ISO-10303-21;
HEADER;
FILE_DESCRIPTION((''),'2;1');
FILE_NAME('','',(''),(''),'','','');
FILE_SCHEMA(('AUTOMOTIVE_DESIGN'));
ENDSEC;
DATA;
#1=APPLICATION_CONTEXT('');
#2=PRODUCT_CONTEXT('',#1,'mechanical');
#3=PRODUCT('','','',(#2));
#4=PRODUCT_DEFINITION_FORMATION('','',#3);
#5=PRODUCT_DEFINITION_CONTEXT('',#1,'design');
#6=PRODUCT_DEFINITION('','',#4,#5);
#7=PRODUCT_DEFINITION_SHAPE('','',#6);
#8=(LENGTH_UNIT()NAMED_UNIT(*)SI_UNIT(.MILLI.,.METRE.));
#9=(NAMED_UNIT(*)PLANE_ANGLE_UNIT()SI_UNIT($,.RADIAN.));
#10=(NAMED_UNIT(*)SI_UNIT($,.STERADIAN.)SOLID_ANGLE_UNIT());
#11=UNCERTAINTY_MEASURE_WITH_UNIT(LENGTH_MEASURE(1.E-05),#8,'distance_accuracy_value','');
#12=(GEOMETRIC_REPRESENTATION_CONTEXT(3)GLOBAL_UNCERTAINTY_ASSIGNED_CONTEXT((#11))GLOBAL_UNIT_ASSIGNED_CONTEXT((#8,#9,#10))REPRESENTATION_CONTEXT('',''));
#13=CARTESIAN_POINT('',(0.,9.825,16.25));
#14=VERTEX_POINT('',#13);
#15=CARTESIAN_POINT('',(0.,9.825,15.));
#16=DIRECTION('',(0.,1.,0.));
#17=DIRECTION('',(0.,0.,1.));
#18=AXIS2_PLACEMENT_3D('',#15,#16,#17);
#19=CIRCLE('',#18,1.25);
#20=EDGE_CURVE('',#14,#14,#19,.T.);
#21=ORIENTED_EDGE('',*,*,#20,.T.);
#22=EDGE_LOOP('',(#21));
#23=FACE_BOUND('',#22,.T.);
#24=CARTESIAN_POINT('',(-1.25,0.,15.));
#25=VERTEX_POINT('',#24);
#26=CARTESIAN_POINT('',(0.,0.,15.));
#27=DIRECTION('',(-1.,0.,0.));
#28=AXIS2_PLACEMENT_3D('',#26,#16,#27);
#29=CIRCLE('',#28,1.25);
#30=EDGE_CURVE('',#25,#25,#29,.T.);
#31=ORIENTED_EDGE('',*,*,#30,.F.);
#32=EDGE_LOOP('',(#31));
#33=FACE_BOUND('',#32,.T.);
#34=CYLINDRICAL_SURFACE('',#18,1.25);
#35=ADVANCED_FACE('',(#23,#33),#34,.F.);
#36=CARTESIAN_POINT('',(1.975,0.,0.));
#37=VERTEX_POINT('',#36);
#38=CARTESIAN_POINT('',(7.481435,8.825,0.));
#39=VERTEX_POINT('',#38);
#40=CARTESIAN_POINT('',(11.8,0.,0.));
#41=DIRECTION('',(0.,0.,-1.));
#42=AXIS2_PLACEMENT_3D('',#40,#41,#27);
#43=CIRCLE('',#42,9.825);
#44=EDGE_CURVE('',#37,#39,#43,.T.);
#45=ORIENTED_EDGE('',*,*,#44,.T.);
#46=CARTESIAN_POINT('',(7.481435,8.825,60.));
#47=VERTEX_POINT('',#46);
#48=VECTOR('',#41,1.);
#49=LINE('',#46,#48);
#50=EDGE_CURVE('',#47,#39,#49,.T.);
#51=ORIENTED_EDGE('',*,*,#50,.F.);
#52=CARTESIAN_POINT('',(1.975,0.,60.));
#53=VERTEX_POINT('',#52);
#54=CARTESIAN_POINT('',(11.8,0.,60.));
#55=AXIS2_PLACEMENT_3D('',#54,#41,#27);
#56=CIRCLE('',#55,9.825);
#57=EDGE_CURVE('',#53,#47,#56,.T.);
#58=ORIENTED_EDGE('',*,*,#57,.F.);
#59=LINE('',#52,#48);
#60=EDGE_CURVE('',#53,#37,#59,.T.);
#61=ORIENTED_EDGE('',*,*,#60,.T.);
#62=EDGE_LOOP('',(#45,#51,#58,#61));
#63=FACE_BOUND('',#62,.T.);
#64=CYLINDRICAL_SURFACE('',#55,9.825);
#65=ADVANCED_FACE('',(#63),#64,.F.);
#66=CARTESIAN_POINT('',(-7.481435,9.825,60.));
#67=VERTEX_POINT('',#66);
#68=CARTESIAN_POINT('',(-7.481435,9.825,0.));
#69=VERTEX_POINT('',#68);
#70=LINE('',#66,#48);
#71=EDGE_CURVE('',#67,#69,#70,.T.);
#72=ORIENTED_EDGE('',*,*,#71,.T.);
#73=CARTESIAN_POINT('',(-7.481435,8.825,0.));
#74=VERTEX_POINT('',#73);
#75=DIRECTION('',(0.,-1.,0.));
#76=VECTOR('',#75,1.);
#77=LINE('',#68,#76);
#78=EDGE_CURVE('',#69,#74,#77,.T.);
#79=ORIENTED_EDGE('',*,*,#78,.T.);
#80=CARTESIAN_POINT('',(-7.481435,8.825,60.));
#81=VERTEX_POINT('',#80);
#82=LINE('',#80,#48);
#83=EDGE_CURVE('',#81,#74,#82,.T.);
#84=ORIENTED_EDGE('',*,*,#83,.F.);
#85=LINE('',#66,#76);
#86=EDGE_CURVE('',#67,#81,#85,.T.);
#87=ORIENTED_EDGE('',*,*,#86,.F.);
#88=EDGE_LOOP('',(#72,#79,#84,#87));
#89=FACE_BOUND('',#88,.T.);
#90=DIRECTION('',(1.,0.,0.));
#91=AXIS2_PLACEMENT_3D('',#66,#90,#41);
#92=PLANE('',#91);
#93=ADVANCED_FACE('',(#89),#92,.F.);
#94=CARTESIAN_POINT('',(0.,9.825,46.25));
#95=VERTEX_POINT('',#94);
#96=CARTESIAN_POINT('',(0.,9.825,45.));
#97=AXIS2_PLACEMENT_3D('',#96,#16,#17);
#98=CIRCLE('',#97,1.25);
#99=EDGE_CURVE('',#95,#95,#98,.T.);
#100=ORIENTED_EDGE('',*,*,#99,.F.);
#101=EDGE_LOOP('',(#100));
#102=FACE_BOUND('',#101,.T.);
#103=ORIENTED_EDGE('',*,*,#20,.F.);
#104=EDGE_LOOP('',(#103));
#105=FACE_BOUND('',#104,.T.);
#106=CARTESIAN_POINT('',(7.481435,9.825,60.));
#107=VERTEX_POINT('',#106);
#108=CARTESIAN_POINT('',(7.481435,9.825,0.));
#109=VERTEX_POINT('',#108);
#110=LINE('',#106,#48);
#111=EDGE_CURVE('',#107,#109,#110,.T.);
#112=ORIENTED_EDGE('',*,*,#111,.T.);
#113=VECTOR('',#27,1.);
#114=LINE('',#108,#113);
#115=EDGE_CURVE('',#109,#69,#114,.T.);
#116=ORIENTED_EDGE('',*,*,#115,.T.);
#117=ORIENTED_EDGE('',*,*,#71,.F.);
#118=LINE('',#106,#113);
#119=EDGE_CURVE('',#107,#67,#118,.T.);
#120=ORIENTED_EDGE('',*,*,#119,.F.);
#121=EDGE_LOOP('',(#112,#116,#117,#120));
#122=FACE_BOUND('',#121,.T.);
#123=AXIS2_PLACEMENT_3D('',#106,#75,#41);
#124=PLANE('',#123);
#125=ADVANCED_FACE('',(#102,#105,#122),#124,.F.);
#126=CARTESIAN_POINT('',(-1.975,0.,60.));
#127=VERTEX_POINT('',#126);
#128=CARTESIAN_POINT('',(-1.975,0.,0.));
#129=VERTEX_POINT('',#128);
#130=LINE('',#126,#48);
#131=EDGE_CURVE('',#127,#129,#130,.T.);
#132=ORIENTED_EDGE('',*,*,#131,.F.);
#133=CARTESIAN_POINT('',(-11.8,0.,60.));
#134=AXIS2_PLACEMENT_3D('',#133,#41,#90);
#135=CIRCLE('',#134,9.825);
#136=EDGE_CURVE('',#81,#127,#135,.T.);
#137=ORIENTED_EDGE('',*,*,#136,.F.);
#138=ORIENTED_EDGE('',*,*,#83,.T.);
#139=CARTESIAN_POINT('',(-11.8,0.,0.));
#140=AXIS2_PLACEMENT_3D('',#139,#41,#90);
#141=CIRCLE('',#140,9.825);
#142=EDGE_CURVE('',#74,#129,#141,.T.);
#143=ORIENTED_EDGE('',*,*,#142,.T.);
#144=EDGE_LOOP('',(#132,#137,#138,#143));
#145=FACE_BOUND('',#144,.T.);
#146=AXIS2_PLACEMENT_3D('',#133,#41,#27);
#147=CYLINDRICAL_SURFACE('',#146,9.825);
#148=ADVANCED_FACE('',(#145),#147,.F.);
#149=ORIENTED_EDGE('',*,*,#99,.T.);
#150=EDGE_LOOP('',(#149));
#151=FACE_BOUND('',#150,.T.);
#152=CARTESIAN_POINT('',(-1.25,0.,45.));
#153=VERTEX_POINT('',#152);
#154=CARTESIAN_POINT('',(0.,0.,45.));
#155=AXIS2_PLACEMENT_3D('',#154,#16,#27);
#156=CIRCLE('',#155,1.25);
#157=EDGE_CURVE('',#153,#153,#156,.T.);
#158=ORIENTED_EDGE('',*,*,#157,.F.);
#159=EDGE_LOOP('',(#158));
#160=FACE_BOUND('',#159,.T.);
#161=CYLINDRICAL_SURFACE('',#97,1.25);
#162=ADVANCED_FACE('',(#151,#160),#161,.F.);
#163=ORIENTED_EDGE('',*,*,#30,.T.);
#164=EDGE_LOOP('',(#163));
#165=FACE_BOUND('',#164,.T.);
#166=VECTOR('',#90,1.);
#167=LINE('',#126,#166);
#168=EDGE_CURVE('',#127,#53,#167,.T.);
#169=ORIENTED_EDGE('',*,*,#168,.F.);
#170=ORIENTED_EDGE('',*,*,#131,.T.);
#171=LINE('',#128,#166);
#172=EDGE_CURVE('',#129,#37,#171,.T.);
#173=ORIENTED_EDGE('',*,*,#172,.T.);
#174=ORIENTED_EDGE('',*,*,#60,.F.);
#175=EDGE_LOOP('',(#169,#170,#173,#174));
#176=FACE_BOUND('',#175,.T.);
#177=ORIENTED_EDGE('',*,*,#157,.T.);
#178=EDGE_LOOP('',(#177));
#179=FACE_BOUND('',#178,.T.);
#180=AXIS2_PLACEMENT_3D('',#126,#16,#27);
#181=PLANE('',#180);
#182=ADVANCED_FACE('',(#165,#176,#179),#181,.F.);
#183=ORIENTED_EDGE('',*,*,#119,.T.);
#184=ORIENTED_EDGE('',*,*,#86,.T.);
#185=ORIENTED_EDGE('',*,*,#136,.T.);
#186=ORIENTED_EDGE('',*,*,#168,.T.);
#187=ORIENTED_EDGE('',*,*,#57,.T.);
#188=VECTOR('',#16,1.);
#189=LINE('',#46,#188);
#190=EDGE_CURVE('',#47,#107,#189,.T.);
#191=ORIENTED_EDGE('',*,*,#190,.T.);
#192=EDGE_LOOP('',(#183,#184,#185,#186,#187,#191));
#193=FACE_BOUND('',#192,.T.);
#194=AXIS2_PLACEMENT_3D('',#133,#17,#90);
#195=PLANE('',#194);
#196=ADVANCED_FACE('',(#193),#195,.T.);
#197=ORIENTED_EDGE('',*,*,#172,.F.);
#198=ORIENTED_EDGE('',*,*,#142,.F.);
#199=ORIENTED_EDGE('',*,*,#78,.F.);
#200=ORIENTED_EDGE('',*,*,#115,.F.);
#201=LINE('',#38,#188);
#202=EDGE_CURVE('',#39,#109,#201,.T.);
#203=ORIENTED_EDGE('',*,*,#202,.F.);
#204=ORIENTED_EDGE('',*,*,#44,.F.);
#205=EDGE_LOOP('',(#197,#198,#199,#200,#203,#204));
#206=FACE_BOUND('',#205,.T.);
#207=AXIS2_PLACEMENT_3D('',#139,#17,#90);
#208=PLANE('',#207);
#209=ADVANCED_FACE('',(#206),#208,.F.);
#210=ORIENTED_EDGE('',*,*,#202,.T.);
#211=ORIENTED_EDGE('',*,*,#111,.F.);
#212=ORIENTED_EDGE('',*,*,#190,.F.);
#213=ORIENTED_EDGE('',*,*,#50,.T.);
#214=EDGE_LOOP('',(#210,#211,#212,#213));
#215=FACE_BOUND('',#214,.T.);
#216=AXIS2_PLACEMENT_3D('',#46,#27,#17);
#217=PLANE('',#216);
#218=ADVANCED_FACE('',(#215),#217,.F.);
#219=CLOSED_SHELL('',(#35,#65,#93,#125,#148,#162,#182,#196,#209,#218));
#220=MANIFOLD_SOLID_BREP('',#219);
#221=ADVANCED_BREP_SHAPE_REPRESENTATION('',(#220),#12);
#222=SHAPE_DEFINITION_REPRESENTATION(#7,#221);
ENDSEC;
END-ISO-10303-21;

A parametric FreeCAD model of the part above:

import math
import FreeCAD as App
import Part
import Sketcher

doc = App.newDocument("Part")
body = doc.addObject("PartDesign::Body", "Body")

sketch1 = body.newObject("Sketcher::SketchObject", "Sketch")
sketch1.AttachmentSupport = (doc.getObject("XY_Plane"), [""])
sketch1.MapMode = "FlatFace"
sketch1.addGeometry([
    Part.LineSegment(App.Vector(-2, 0, 0), App.Vector(2, 0, 0)),
    Part.ArcOfCircle(Part.Circle(App.Vector(11.8, 0, 0), App.Vector(0, 0, 1), 9.8), math.radians(116), math.radians(180)),
    Part.LineSegment(App.Vector(7.5, 8.8, 0), App.Vector(7.5, 9.8, 0)),
    Part.LineSegment(App.Vector(7.5, 9.8, 0), App.Vector(-7.5, 9.8, 0)),
    Part.LineSegment(App.Vector(-7.5, 9.8, 0), App.Vector(-7.5, 8.8, 0)),
    Part.ArcOfCircle(Part.Circle(App.Vector(-11.8, 0, 0), App.Vector(0, 0, 1), 9.8), math.radians(0), math.radians(64)),
], False)
sketch1.addConstraint([
    Sketcher.Constraint("Coincident", 0, 2, 1, 2),
    Sketcher.Constraint("Coincident", 1, 1, 2, 1),
    Sketcher.Constraint("Coincident", 2, 2, 3, 1),
    Sketcher.Constraint("Coincident", 3, 2, 4, 1),
    Sketcher.Constraint("Coincident", 4, 2, 5, 2),
    Sketcher.Constraint("Coincident", 5, 1, 0, 1),
    Sketcher.Constraint("Horizontal", 0),
    Sketcher.Constraint("Vertical", 2),
    Sketcher.Constraint("Horizontal", 3),
    Sketcher.Constraint("Vertical", 4),
    Sketcher.Constraint("Equal", 1, 5),
    Sketcher.Constraint("Symmetric", 1, 3, 5, 3, -1, 1),
    Sketcher.Constraint("Symmetric", 1, 1, 4, 2, -2),
    Sketcher.Constraint("PointOnObject", 0, 2, -1),
    Sketcher.Constraint("DistanceY", 2, 1, 2, 2, 1.0),
    Sketcher.Constraint("Radius", 1, 9.825),
    Sketcher.Constraint("DistanceX", 0, 1, 0, 2, 3.95),
    Sketcher.Constraint("DistanceY", -1, 1, 1, 1, 8.825),
])
pad1 = body.newObject("PartDesign::Pad", "Pad")
pad1.Profile = sketch1
pad1.Length = 60

sketch2 = body.newObject("Sketcher::SketchObject", "Sketch001")
sketch2.AttachmentSupport = (doc.getObject("XZ_Plane"), [""])
sketch2.MapMode = "FlatFace"
sketch2.AttachmentOffset = App.Placement(App.Vector(0, 0, -9.825), App.Rotation())
sketch2.addGeometry([
    Part.Circle(App.Vector(0, 45, 0), App.Vector(0, 0, 1), 1.2),
    Part.Circle(App.Vector(0, 15, 0), App.Vector(0, 0, 1), 1.2),
], False)
sketch2.addConstraint([
    Sketcher.Constraint("Equal", 0, 1),
    Sketcher.Constraint("PointOnObject", 0, 3, -2),
    Sketcher.Constraint("PointOnObject", 1, 3, -2),
    Sketcher.Constraint("Diameter", 0, 2.5),
    Sketcher.Constraint("DistanceY", -1, 1, 0, 3, 45.0),
    Sketcher.Constraint("DistanceY", -1, 1, 1, 3, 15.0),
])
doc.recompute()
hole = body.newObject("PartDesign::Hole", "Hole")
hole.Profile = sketch2
hole.ThreadType = "None"
hole.Diameter = 2.5
hole.DepthType = "ThroughAll"
hole.Reversed = True

doc.recompute()
